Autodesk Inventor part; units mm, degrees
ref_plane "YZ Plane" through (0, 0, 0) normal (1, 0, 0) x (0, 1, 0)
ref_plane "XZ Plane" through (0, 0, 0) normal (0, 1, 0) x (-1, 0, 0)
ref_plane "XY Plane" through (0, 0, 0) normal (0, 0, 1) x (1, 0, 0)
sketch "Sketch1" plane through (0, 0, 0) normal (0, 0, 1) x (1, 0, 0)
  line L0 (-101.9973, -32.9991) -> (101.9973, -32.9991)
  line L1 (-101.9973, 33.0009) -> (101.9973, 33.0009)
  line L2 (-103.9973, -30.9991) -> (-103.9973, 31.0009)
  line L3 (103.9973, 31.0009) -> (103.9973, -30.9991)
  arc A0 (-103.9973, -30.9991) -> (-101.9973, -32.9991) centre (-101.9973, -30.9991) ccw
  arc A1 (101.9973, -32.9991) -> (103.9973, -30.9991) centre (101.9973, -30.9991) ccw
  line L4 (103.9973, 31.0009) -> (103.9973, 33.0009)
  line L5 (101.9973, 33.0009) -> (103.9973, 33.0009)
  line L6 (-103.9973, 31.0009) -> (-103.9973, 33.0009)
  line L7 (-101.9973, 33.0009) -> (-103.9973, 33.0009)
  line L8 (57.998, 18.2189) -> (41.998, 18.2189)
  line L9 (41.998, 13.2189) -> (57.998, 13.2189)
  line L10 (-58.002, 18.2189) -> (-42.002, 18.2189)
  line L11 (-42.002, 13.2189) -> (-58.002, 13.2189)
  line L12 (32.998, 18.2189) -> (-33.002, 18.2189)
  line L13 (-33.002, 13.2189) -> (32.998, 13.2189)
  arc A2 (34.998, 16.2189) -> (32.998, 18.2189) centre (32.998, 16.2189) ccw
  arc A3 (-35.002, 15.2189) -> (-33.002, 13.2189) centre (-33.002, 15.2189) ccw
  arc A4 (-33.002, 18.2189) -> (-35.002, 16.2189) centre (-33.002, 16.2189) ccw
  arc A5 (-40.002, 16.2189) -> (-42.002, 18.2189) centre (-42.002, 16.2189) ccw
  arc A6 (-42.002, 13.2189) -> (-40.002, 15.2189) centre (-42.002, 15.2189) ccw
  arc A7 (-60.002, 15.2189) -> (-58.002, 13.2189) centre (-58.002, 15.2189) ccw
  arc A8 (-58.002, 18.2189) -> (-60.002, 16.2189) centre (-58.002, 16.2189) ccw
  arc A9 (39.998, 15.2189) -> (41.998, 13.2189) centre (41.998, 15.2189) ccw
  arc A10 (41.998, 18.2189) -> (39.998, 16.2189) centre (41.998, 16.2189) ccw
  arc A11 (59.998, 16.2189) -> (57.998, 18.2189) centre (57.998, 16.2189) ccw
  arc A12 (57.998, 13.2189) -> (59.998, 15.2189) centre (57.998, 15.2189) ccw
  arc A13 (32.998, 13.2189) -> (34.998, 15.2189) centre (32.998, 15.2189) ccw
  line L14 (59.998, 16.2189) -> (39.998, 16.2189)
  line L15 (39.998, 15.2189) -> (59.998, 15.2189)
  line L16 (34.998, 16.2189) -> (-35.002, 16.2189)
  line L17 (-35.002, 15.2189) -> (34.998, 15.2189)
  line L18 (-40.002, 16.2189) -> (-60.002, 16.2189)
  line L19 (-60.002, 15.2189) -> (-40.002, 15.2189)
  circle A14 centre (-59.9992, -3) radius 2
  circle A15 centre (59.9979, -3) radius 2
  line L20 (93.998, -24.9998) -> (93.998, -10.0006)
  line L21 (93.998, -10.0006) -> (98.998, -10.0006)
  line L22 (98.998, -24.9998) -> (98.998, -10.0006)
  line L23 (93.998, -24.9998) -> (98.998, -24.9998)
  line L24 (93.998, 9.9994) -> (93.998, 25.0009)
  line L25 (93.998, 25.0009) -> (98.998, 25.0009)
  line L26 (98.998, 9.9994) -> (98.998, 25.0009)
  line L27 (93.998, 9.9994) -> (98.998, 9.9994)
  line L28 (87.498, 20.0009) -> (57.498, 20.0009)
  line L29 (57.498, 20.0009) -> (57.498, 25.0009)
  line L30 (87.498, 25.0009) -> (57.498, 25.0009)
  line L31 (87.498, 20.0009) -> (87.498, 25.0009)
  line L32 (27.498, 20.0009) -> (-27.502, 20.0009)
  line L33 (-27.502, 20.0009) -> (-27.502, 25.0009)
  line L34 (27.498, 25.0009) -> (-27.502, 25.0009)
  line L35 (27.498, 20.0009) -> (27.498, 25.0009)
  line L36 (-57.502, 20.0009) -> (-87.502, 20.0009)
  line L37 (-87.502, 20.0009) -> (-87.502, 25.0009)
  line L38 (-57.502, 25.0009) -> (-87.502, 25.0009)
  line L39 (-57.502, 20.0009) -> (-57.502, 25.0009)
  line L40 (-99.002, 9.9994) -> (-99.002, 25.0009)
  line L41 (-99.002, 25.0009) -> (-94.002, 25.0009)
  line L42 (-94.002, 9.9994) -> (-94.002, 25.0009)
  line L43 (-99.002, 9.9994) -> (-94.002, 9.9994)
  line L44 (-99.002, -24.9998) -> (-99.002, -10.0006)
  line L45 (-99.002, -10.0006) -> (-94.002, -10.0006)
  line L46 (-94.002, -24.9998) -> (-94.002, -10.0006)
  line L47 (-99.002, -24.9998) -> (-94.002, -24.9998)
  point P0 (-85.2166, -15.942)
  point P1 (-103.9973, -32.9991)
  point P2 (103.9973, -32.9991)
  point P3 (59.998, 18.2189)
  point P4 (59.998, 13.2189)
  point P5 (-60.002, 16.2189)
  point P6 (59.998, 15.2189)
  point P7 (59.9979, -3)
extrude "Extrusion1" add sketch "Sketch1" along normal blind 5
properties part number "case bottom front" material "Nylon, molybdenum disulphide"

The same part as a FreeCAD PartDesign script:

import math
import FreeCAD as App
import Part
import Sketcher


def add_polygon(sketch, points):
    """Adds a closed chain of lines whose ends are joined by coincident constraints."""
    first, n = sketch.GeometryCount, len(points)
    for a, b in zip(points, points[1:] + points[:1]):
        sketch.addGeometry(Part.LineSegment(App.Vector(*a, 0), App.Vector(*b, 0)), False)
    for i in range(n):
        sketch.addConstraint(Sketcher.Constraint("Coincident", first + i, 2, first + (i + 1) % n, 1))

doc = App.newDocument("Part")
body = doc.addObject("PartDesign::Body", "Body")

# Sketch on XY plane
sketch1 = body.newObject("Sketcher::SketchObject", "Sketch")
sketch1.AttachmentSupport = (doc.getObject("XY_Plane"), [""])
sketch1.MapMode = "FlatFace"
sketch1.addGeometry(Part.ArcOfCircle(Part.Circle(App.Vector(-101.9973, -30.9991, 0), App.Vector(0, 0, 1), 2), math.radians(180), math.radians(270)), False)  # 0
sketch1.addGeometry(Part.LineSegment(App.Vector(-101.9973, -32.9991, 0), App.Vector(101.9973, -32.9991, 0)), False)  # 1
sketch1.addGeometry(Part.ArcOfCircle(Part.Circle(App.Vector(101.9973, -30.9991, 0), App.Vector(0, 0, 1), 2), math.radians(-90), math.radians(0)), False)  # 2
sketch1.addGeometry(Part.LineSegment(App.Vector(103.9973, -30.9991, 0), App.Vector(103.9973, 33.0009, 0)), False)  # 3
sketch1.addGeometry(Part.LineSegment(App.Vector(103.9973, 33.0009, 0), App.Vector(-103.9973, 33.0009, 0)), False)  # 4
sketch1.addGeometry(Part.LineSegment(App.Vector(-103.9973, 33.0009, 0), App.Vector(-103.9973, -30.9991, 0)), False)  # 5
add_polygon(sketch1, [(-94.002, -24.9998), (-99.002, -24.9998), (-99.002, -10.0006), (-94.002, -10.0006)])  # lines 6-9
sketch1.addGeometry(Part.Circle(App.Vector(-59.9992, -3, 0), App.Vector(0, 0, 1), 2), False)  # 10
add_polygon(sketch1, [(98.998, -24.9998), (93.998, -24.9998), (93.998, -10.0006), (98.998, -10.0006)])  # lines 11-14
sketch1.addGeometry(Part.Circle(App.Vector(59.9979, -3, 0), App.Vector(0, 0, 1), 2), False)  # 15
sketch1.addGeometry(Part.ArcOfCircle(Part.Circle(App.Vector(-42.002, 15.2189, 0), App.Vector(0, 0, 1), 2), math.radians(-90), math.radians(0)), False)  # 16
sketch1.addGeometry(Part.LineSegment(App.Vector(-42.002, 13.2189, 0), App.Vector(-58.002, 13.2189, 0)), False)  # 17
sketch1.addGeometry(Part.ArcOfCircle(Part.Circle(App.Vector(-58.002, 15.2189, 0), App.Vector(0, 0, 1), 2), math.radians(180), math.radians(270)), False)  # 18
sketch1.addGeometry(Part.LineSegment(App.Vector(-60.002, 15.2189, 0), App.Vector(-40.002, 15.2189, 0)), False)  # 19
sketch1.addGeometry(Part.LineSegment(App.Vector(32.998, 13.2189, 0), App.Vector(-33.002, 13.2189, 0)), False)  # 20
sketch1.addGeometry(Part.ArcOfCircle(Part.Circle(App.Vector(-33.002, 15.2189, 0), App.Vector(0, 0, 1), 2), math.radians(180), math.radians(270)), False)  # 21
sketch1.addGeometry(Part.LineSegment(App.Vector(-35.002, 15.2189, 0), App.Vector(34.998, 15.2189, 0)), False)  # 22
sketch1.addGeometry(Part.ArcOfCircle(Part.Circle(App.Vector(32.998, 15.2189, 0), App.Vector(0, 0, 1), 2), math.radians(-90), math.radians(0)), False)  # 23
add_polygon(sketch1, [(-94.002, 9.9994), (-99.002, 9.9994), (-99.002, 25.0009), (-94.002, 25.0009)])  # lines 24-27
add_polygon(sketch1, [(-57.502, 25.0009), (-57.502, 20.0009), (-87.502, 20.0009), (-87.502, 25.0009)])  # lines 28-31
sketch1.addGeometry(Part.ArcOfCircle(Part.Circle(App.Vector(-58.002, 16.2189, 0), App.Vector(0, 0, 1), 2), math.radians(90), math.radians(180)), False)  # 32
sketch1.addGeometry(Part.LineSegment(App.Vector(-58.002, 18.2189, 0), App.Vector(-42.002, 18.2189, 0)), False)  # 33
sketch1.addGeometry(Part.ArcOfCircle(Part.Circle(App.Vector(-42.002, 16.2189, 0), App.Vector(0, 0, 1), 2), math.radians(0), math.radians(90)), False)  # 34
sketch1.addGeometry(Part.LineSegment(App.Vector(-40.002, 16.2189, 0), App.Vector(-60.002, 16.2189, 0)), False)  # 35
sketch1.addGeometry(Part.LineSegment(App.Vector(-33.002, 18.2189, 0), App.Vector(32.998, 18.2189, 0)), False)  # 36
sketch1.addGeometry(Part.ArcOfCircle(Part.Circle(App.Vector(32.998, 16.2189, 0), App.Vector(0, 0, 1), 2), math.radians(0), math.radians(90)), False)  # 37
sketch1.addGeometry(Part.LineSegment(App.Vector(34.998, 16.2189, 0), App.Vector(-35.002, 16.2189, 0)), False)  # 38
sketch1.addGeometry(Part.ArcOfCircle(Part.Circle(App.Vector(-33.002, 16.2189, 0), App.Vector(0, 0, 1), 2), math.radians(90), math.radians(180)), False)  # 39
add_polygon(sketch1, [(27.498, 25.0009), (27.498, 20.0009), (-27.502, 20.0009), (-27.502, 25.0009)])  # lines 40-43
sketch1.addGeometry(Part.LineSegment(App.Vector(57.998, 13.2189, 0), App.Vector(41.998, 13.2189, 0)), False)  # 44
sketch1.addGeometry(Part.ArcOfCircle(Part.Circle(App.Vector(41.998, 15.2189, 0), App.Vector(0, 0, 1), 2), math.radians(180), math.radians(270)), False)  # 45
sketch1.addGeometry(Part.LineSegment(App.Vector(39.998, 15.2189, 0), App.Vector(59.998, 15.2189, 0)), False)  # 46
sketch1.addGeometry(Part.ArcOfCircle(Part.Circle(App.Vector(57.998, 15.2189, 0), App.Vector(0, 0, 1), 2), math.radians(-90), math.radians(0)), False)  # 47
sketch1.addGeometry(Part.LineSegment(App.Vector(41.998, 18.2189, 0), App.Vector(57.998, 18.2189, 0)), False)  # 48
sketch1.addGeometry(Part.ArcOfCircle(Part.Circle(App.Vector(57.998, 16.2189, 0), App.Vector(0, 0, 1), 2), math.radians(0), math.radians(90)), False)  # 49
sketch1.addGeometry(Part.LineSegment(App.Vector(59.998, 16.2189, 0), App.Vector(39.998, 16.2189, 0)), False)  # 50
sketch1.addGeometry(Part.ArcOfCircle(Part.Circle(App.Vector(41.998, 16.2189, 0), App.Vector(0, 0, 1), 2), math.radians(90), math.radians(180)), False)  # 51
add_polygon(sketch1, [(87.498, 25.0009), (87.498, 20.0009), (57.498, 20.0009), (57.498, 25.0009)])  # lines 52-55
add_polygon(sketch1, [(98.998, 9.9994), (93.998, 9.9994), (93.998, 25.0009), (98.998, 25.0009)])  # lines 56-59
sketch1.addConstraint([
    Sketcher.Constraint("Tangent", 0, 2, 1, 1),
    Sketcher.Constraint("Tangent", 1, 2, 2, 1),
    Sketcher.Constraint("Tangent", 2, 2, 3, 1),
    Sketcher.Constraint("Coincident", 3, 2, 4, 1),
    Sketcher.Constraint("Coincident", 4, 2, 5, 1),
    Sketcher.Constraint("Tangent", 5, 2, 0, 1),
    Sketcher.Constraint("Tangent", 16, 1, 17, 1),
    Sketcher.Constraint("Tangent", 17, 2, 18, 2),
    Sketcher.Constraint("Coincident", 18, 1, 19, 1),
    Sketcher.Constraint("Coincident", 19, 2, 16, 2),
    Sketcher.Constraint("Tangent", 20, 2, 21, 2),
    Sketcher.Constraint("Coincident", 21, 1, 22, 1),
    Sketcher.Constraint("Coincident", 22, 2, 23, 2),
    Sketcher.Constraint("Tangent", 23, 1, 20, 1),
    Sketcher.Constraint("Tangent", 32, 1, 33, 1),
    Sketcher.Constraint("Tangent", 33, 2, 34, 2),
    Sketcher.Constraint("Coincident", 34, 1, 35, 1),
    Sketcher.Constraint("Coincident", 35, 2, 32, 2),
    Sketcher.Constraint("Tangent", 36, 2, 37, 2),
    Sketcher.Constraint("Coincident", 37, 1, 38, 1),
    Sketcher.Constraint("Coincident", 38, 2, 39, 2),
    Sketcher.Constraint("Tangent", 39, 1, 36, 1),
    Sketcher.Constraint("Tangent", 44, 2, 45, 2),
    Sketcher.Constraint("Coincident", 45, 1, 46, 1),
    Sketcher.Constraint("Coincident", 46, 2, 47, 2),
    Sketcher.Constraint("Tangent", 47, 1, 44, 1),
    Sketcher.Constraint("Tangent", 48, 2, 49, 2),
    Sketcher.Constraint("Coincident", 49, 1, 50, 1),
    Sketcher.Constraint("Coincident", 50, 2, 51, 2),
    Sketcher.Constraint("Tangent", 51, 1, 48, 1),
    Sketcher.Constraint("Horizontal", 1),
    Sketcher.Constraint("Vertical", 3),
    Sketcher.Constraint("Horizontal", 4),
    Sketcher.Constraint("Vertical", 5),
    Sketcher.Constraint("Horizontal", 6),
    Sketcher.Constraint("Vertical", 7),
    Sketcher.Constraint("Horizontal", 8),
    Sketcher.Constraint("Vertical", 9),
    Sketcher.Constraint("Horizontal", 11),
    Sketcher.Constraint("Vertical", 12),
    Sketcher.Constraint("Horizontal", 13),
    Sketcher.Constraint("Vertical", 14),
    Sketcher.Constraint("Horizontal", 17),
    Sketcher.Constraint("Horizontal", 19),
    Sketcher.Constraint("Horizontal", 20),
    Sketcher.Constraint("Horizontal", 22),
    Sketcher.Constraint("Horizontal", 24),
    Sketcher.Constraint("Vertical", 25),
    Sketcher.Constraint("Horizontal", 26),
    Sketcher.Constraint("Vertical", 27),
    Sketcher.Constraint("Vertical", 28),
    Sketcher.Constraint("Horizontal", 29),
    Sketcher.Constraint("Vertical", 30),
    Sketcher.Constraint("Horizontal", 31),
    Sketcher.Constraint("Horizontal", 33),
    Sketcher.Constraint("Horizontal", 35),
    Sketcher.Constraint("Horizontal", 36),
    Sketcher.Constraint("Horizontal", 38),
    Sketcher.Constraint("Vertical", 40),
    Sketcher.Constraint("Horizontal", 41),
    Sketcher.Constraint("Vertical", 42),
    Sketcher.Constraint("Horizontal", 43),
    Sketcher.Constraint("Horizontal", 44),
    Sketcher.Constraint("Horizontal", 46),
    Sketcher.Constraint("Horizontal", 48),
    Sketcher.Constraint("Horizontal", 50),
    Sketcher.Constraint("Vertical", 52),
    Sketcher.Constraint("Horizontal", 53),
    Sketcher.Constraint("Vertical", 54),
    Sketcher.Constraint("Horizontal", 55),
    Sketcher.Constraint("Horizontal", 56),
    Sketcher.Constraint("Vertical", 57),
    Sketcher.Constraint("Horizontal", 58),
    Sketcher.Constraint("Vertical", 59),
    Sketcher.Constraint("Equal", 0, 2),
    Sketcher.Constraint("Equal", 2, 10),
    Sketcher.Constraint("Equal", 10, 15),
    Sketcher.Constraint("Equal", 15, 16),
    Sketcher.Constraint("Equal", 16, 18),
    Sketcher.Constraint("Equal", 18, 21),
    Sketcher.Constraint("Equal", 21, 23),
    Sketcher.Constraint("Equal", 23, 32),
    Sketcher.Constraint("Equal", 32, 34),
    Sketcher.Constraint("Equal", 34, 37),
    Sketcher.Constraint("Equal", 37, 39),
    Sketcher.Constraint("Equal", 39, 45),
    Sketcher.Constraint("Equal", 45, 47),
    Sketcher.Constraint("Equal", 47, 49),
    Sketcher.Constraint("Equal", 49, 51),
    Sketcher.Constraint("Horizontal", 10, 3, 15, 3),
    Sketcher.Constraint("Horizontal", 18, 3, 21, 3),
    Sketcher.Constraint("Horizontal", 34, 3, 37, 3),
    Sketcher.Constraint("Horizontal", 23, 3, 45, 3),
    Sketcher.Constraint("Horizontal", 39, 3, 49, 3),
    Sketcher.Constraint("Horizontal", 9, 2, 11, 2),
    Sketcher.Constraint("Horizontal", 8, 2, 12, 2),
    Sketcher.Constraint("Horizontal", 47, 3, 18, 1),
    Sketcher.Constraint("Horizontal", 19, 2, 21, 1),
    Sketcher.Constraint("Horizontal", 26, 2, 30, 2),
    Sketcher.Constraint("Horizontal", 51, 3, 34, 1),
    Sketcher.Constraint("Horizontal", 35, 2, 37, 1),
    Sketcher.Constraint("Horizontal", 29, 2, 40, 2),
    Sketcher.Constraint("Horizontal", 31, 2, 42, 2),
    Sketcher.Constraint("Horizontal", 22, 2, 45, 1),
    Sketcher.Constraint("Horizontal", 38, 2, 49, 1),
    Sketcher.Constraint("Horizontal", 41, 2, 52, 2),
    Sketcher.Constraint("Horizontal", 43, 2, 54, 2),
    Sketcher.Constraint("Horizontal", 27, 2, 56, 2),
    Sketcher.Constraint("Horizontal", 55, 2, 57, 2),
    Sketcher.Constraint("Vertical", 18, 3, 32, 3),
    Sketcher.Constraint("Vertical", 16, 3, 34, 3),
    Sketcher.Constraint("Vertical", 23, 3, 37, 3),
    Sketcher.Constraint("Vertical", 21, 3, 39, 3),
    Sketcher.Constraint("Vertical", 47, 3, 49, 3),
    Sketcher.Constraint("Vertical", 45, 3, 51, 3),
    Sketcher.Constraint("Vertical", 7, 2, 24, 2),
    Sketcher.Constraint("Vertical", 9, 2, 26, 2),
    Sketcher.Constraint("Vertical", 15, 3, 46, 2),
    Sketcher.Constraint("Vertical", 12, 2, 56, 2),
    Sketcher.Constraint("Vertical", 14, 2, 58, 2),
    Sketcher.Constraint("Equal", 8, 11),
    Sketcher.Constraint("Equal", 33, 44),
    Sketcher.Constraint("Equal", 31, 53),
    Sketcher.Constraint("Equal", 58, 28),
    Sketcher.Constraint("Diameter", 10, 4.0),
    Sketcher.Constraint("DistanceX", 6, 2, 6, 1, 5.0),
    Sketcher.Constraint("DistanceX", 17, 2, 17, 1, 16.0),
    Sketcher.Constraint("DistanceX", 20, 2, 20, 1, 66.0),
    Sketcher.Constraint("DistanceX", 29, 2, 29, 1, 30.0),
    Sketcher.Constraint("DistanceX", 41, 2, 41, 1, 55.0),
    Sketcher.Constraint("DistanceY", 3, 1, 3, 2, 64.0),
    Sketcher.Constraint("DistanceY", 10, 3, -1, 1, 3.0),
    Sketcher.Constraint("DistanceX", 1, 1, 1, 2, 203.9946),
    Sketcher.Constraint("DistanceY", 7, 1, 7, 2, 14.9992),
    Sketcher.Constraint("DistanceY", 25, 1, 25, 2, 15.0015),
    Sketcher.Constraint("DistanceY", 0, 3, -1, 1, 30.999),
    Sketcher.Constraint("DistanceX", -1, 1, 15, 3, 59.998),
    Sketcher.Constraint("DistanceX", 16, 3, -1, 1, 42.002),
    Sketcher.Constraint("DistanceY", -1, 1, 16, 3, 15.219),
    Sketcher.Constraint("DistanceX", 21, 3, -1, 1, 33.002),
    Sketcher.Constraint("DistanceY", -1, 1, 32, 3, 16.219),
    Sketcher.Constraint("DistanceX", 6, 2, -1, 1, 99.002),
    Sketcher.Constraint("DistanceX", -1, 1, 11, 2, 93.998),
    Sketcher.Constraint("DistanceY", -1, 1, 25, 2, 25.001),
    Sketcher.Constraint("DistanceX", 28, 2, -1, 1, 57.502),
    Sketcher.Constraint("DistanceX", -1, 1, 40, 2, 27.498),
    Sketcher.Constraint("DistanceX", -1, 1, 52, 2, 87.498),
    Sketcher.Constraint("DistanceX", 0, 3, -1, 1, 101.9973),
    Sketcher.Constraint("DistanceX", 10, 3, -1, 1, 59.9992),
    Sketcher.Constraint("DistanceY", 6, 2, -1, 1, 24.9998),
])
pad1 = body.newObject("PartDesign::Pad", "Pad")
pad1.Profile = sketch1
pad1.Length = 5

doc.recompute()
